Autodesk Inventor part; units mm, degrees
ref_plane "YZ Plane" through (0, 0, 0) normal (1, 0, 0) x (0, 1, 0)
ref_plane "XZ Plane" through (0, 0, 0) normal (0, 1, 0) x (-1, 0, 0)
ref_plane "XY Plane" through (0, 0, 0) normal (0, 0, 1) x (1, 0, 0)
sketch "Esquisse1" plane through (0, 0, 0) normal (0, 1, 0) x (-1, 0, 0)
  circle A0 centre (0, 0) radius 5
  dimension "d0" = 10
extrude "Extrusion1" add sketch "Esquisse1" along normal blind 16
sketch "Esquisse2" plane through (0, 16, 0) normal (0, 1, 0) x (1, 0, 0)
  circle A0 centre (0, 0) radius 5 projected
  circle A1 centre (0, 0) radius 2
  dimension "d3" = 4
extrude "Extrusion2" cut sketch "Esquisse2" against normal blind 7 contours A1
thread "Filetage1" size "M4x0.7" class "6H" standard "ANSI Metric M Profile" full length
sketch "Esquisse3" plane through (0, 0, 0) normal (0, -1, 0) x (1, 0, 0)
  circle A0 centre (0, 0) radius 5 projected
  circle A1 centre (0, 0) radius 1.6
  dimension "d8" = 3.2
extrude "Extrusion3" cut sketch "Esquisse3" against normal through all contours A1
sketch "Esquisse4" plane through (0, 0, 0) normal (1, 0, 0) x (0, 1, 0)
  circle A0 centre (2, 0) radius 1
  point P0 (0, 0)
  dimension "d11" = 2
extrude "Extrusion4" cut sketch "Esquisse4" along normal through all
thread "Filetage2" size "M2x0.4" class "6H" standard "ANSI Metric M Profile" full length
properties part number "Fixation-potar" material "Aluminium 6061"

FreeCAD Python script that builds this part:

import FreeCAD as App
import Part
import Sketcher

V = App.Vector

doc = App.newDocument("Part")
params = doc.addObject("Spreadsheet::Sheet", "Params")
for row, (alias, value) in enumerate([
    ("sketch1_diameter", "10 mm"),
    ("pad1_length", "16 mm"),
    ("sketch2_diameter", "4 mm"),
    ("pocket1_length", "7 mm"),
    ("sketch3_diameter", "3.2 mm"),
    ("sketch4_diameter", "2 mm"),
], start=1):
    params.set(f"A{row}", alias)
    params.set(f"B{row}", "=" + value)
    params.setAlias(f"B{row}", alias)

body = doc.addObject("PartDesign::Body", "Body")

# Sketch on XZ plane
sketch1 = body.newObject("Sketcher::SketchObject", "Sketch")
sketch1.AttachmentSupport = (doc.getObject("XZ_Plane"), [""])
sketch1.MapMode = "FlatFace"
sketch1.addGeometry(Part.Circle(V(0, 0, 0), V(0, 0, 1), 5), False)
sketch1.addConstraint([
    Sketcher.Constraint("Coincident", 0, 3, -1, 1),
    Sketcher.Constraint("Diameter", 0, 10.0),
])
sketch1.setExpression("Constraints[1]", "Params.sketch1_diameter")
pad1 = body.newObject("PartDesign::Pad", "Pad")
pad1.Profile = sketch1
pad1.setExpression("Length", "Params.pad1_length")
pad1.Reversed = True

# Sketch on XZ plane
sketch2 = body.newObject("Sketcher::SketchObject", "Sketch001")
sketch2.AttachmentSupport = (doc.getObject("XZ_Plane"), [""])
sketch2.MapMode = "FlatFace"
sketch2.AttachmentOffset = App.Placement(V(0, 0, -16), App.Rotation())
sketch2.addGeometry(Part.Circle(V(0, 0, 0), V(0, 0, 1), 2), False)
sketch2.addConstraint([
    Sketcher.Constraint("Coincident", 0, 3, -1, 1),
    Sketcher.Constraint("Diameter", 0, 4.0),
])
sketch2.setExpression("Constraints[1]", "Params.sketch2_diameter")
pocket1 = body.newObject("PartDesign::Pocket", "Pocket")
pocket1.Profile = sketch2
pocket1.setExpression("Length", "Params.pocket1_length")
pocket1.Reversed = True

# Sketch on XZ plane
sketch3 = body.newObject("Sketcher::SketchObject", "Sketch002")
sketch3.AttachmentSupport = (doc.getObject("XZ_Plane"), [""])
sketch3.MapMode = "FlatFace"
sketch3.addGeometry(Part.Circle(V(0, 0, 0), V(0, 0, 1), 1.6), False)
sketch3.addConstraint([
    Sketcher.Constraint("Coincident", 0, 3, -1, 1),
    Sketcher.Constraint("Diameter", 0, 3.2),
])
sketch3.setExpression("Constraints[1]", "Params.sketch3_diameter")
pocket2 = body.newObject("PartDesign::Pocket", "Pocket001")
pocket2.Profile = sketch3
pocket2.Type = "ThroughAll"

# Sketch on YZ plane
sketch4 = body.newObject("Sketcher::SketchObject", "Sketch003")
sketch4.AttachmentSupport = (doc.getObject("YZ_Plane"), [""])
sketch4.MapMode = "FlatFace"
sketch4.addGeometry(Part.Circle(V(2, 0, 0), V(0, 0, 1), 1), False)
sketch4.addConstraint([
    Sketcher.Constraint("PointOnObject", 0, 3, -1),
    Sketcher.Constraint("Diameter", 0, 2.0),
    Sketcher.Constraint("DistanceX", -1, 1, 0, 3, 2.0),
])
sketch4.setExpression("Constraints[1]", "Params.sketch4_diameter")
pocket3 = body.newObject("PartDesign::Pocket", "Pocket002")
pocket3.Profile = sketch4
pocket3.Type = "ThroughAll"
pocket3.Reversed = True

doc.recompute()
